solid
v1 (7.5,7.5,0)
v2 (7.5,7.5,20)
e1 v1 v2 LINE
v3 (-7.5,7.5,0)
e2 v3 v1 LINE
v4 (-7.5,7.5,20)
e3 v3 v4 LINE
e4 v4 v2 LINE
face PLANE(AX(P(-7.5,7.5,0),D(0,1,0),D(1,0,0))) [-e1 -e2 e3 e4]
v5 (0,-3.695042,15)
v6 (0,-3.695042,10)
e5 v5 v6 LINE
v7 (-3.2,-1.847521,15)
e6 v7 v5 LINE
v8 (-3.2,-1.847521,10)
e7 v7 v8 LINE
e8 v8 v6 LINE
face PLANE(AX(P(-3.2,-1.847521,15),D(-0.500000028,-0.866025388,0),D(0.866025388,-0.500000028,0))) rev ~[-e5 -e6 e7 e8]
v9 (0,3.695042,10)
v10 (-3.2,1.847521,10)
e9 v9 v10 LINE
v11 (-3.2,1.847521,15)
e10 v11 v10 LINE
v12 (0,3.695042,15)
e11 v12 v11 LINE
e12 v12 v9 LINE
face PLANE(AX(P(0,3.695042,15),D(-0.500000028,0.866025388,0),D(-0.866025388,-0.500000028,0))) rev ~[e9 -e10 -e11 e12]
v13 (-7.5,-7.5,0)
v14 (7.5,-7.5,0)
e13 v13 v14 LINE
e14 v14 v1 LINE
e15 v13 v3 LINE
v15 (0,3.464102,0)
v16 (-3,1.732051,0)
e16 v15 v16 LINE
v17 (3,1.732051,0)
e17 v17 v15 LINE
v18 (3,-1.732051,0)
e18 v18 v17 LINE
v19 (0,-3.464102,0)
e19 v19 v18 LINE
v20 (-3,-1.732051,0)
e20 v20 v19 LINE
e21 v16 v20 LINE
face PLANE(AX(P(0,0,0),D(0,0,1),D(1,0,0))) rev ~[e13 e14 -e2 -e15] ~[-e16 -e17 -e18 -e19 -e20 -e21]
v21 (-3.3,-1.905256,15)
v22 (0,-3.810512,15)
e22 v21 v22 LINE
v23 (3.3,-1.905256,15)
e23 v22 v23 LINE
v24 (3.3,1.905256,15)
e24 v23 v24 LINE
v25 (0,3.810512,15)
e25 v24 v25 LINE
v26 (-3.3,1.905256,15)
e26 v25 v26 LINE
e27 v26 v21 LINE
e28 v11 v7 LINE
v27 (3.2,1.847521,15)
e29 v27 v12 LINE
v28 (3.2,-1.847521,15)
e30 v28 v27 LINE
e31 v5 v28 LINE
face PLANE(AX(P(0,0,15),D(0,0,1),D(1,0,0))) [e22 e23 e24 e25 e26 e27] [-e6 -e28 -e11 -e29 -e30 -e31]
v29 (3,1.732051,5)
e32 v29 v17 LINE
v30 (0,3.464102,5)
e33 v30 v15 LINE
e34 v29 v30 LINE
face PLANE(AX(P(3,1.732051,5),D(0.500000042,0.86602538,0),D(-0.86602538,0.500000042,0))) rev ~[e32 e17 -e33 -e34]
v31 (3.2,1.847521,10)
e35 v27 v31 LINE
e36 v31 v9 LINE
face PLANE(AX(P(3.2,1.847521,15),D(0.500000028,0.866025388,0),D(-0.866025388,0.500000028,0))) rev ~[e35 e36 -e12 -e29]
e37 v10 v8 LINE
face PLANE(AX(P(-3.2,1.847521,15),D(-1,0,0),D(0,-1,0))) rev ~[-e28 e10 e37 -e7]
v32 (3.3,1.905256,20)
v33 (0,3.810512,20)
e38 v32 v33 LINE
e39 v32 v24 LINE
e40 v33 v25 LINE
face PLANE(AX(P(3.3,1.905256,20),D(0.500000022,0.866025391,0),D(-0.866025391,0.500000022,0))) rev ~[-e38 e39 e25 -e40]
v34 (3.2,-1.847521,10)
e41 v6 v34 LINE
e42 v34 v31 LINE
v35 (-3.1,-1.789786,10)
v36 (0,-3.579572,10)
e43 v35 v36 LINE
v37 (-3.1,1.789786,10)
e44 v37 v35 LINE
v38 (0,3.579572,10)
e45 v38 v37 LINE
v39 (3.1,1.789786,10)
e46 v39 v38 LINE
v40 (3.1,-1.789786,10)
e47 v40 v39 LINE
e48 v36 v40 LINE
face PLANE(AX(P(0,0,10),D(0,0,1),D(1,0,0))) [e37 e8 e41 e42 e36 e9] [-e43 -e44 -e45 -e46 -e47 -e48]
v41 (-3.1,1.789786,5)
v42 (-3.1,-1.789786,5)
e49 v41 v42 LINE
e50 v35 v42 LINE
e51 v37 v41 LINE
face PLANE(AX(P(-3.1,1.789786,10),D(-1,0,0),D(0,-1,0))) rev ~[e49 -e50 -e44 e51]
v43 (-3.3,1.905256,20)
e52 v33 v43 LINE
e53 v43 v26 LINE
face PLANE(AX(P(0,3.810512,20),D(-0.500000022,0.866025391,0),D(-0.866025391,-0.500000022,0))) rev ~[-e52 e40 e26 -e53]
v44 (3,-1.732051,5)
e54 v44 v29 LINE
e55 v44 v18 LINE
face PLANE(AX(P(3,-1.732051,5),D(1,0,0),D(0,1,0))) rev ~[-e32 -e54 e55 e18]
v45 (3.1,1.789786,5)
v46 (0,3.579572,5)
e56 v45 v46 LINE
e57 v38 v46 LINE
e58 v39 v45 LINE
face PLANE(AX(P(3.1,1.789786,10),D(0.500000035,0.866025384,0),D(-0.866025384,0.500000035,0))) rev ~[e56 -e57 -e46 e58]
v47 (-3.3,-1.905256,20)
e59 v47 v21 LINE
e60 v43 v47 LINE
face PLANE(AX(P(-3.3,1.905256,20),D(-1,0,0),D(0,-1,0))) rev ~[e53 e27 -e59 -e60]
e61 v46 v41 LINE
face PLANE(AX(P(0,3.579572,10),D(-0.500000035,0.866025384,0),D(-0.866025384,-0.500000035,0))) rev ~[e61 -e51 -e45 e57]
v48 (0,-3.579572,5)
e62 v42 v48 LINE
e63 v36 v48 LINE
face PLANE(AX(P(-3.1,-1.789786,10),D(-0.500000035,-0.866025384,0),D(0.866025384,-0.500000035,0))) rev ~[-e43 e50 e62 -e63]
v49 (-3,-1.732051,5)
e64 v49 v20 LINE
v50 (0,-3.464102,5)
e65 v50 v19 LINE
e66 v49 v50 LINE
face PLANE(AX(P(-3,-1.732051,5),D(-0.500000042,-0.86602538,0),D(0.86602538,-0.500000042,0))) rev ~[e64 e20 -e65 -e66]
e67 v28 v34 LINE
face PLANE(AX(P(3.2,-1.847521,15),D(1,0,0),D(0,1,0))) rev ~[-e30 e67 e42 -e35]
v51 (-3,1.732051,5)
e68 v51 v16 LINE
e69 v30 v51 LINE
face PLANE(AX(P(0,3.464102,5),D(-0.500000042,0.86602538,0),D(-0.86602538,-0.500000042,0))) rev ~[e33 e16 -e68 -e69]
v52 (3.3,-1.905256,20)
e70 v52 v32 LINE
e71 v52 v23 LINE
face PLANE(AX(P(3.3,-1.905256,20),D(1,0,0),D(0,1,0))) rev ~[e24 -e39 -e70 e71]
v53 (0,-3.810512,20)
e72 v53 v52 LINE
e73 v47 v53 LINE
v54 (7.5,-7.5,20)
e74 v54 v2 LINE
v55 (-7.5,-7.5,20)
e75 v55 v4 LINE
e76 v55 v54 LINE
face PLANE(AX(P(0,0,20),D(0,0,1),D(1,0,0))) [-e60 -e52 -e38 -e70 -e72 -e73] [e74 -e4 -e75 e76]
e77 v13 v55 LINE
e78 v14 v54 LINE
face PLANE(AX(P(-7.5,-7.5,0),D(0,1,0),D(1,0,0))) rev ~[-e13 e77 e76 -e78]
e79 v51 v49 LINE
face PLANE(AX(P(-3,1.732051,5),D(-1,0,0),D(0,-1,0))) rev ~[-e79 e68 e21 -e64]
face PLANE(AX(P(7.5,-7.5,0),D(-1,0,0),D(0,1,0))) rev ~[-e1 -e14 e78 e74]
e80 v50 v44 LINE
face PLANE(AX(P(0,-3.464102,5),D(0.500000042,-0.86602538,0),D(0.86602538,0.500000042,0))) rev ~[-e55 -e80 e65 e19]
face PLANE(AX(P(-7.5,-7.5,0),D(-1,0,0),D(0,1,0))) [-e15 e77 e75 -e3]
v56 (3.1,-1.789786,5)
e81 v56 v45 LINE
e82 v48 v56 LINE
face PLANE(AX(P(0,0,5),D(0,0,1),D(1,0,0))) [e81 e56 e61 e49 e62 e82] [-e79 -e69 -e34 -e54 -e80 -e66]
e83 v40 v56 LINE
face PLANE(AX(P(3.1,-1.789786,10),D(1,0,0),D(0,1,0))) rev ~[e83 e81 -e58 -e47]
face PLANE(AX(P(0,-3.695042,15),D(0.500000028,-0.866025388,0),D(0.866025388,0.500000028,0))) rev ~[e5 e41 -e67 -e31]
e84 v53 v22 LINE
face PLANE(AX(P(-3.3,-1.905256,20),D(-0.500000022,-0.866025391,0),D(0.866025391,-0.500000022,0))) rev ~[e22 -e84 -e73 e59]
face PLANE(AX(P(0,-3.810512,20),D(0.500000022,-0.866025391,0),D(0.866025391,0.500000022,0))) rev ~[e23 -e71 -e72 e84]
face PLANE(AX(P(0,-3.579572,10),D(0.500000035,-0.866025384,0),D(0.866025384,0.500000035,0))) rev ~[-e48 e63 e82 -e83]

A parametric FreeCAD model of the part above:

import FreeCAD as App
import Part
import Sketcher

V = App.Vector
Q = App.Units.Quantity


def add_polygon(sketch, points):
    """Adds a closed chain of lines whose ends are joined by coincident constraints."""
    first, n = sketch.GeometryCount, len(points)
    for a, b in zip(points, points[1:] + points[:1]):
        sketch.addGeometry(Part.LineSegment(App.Vector(*a, 0), App.Vector(*b, 0)), False)
    for i in range(n):
        sketch.addConstraint(Sketcher.Constraint("Coincident", first + i, 2, first + (i + 1) % n, 1))

doc = App.newDocument("Part")
body = doc.addObject("PartDesign::Body", "Body")

# Sketch on XY plane
sketch1 = doc.addObject("Sketcher::SketchObject", "Sketch")
body.addObject(sketch1)
sketch1.AttachmentSupport = (doc.XY_Plane, [""])
sketch1.MapMode = "FlatFace"
add_polygon(sketch1, [(-8, 8), (-8, -8), (8, -8), (8, 8)])  # lines 0-3
sketch1.addConstraint(Sketcher.Constraint("Vertical", 0))
sketch1.addConstraint(Sketcher.Constraint("Horizontal", 1))
sketch1.addConstraint(Sketcher.Constraint("Vertical", 2))
sketch1.addConstraint(Sketcher.Constraint("Horizontal", 3))
sketch1.addConstraint(Sketcher.Constraint("Symmetric", 0, 2, 2, 2, -1, 1))
sketch1.addConstraint(Sketcher.Constraint("Equal", 3, 0))
sketch1.addConstraint(Sketcher.Constraint("DistanceX", 1, 1, 1, 2, 15.0))
pad1 = doc.addObject("PartDesign::Pad", "Pad")
body.addObject(pad1)
pad1.Profile = sketch1
pad1.Length = 20

# Sketch on XY plane
sketch2 = doc.addObject("Sketcher::SketchObject", "Sketch001")
body.addObject(sketch2)
sketch2.AttachmentSupport = (doc.XY_Plane, [""])
sketch2.MapMode = "FlatFace"
sketch2.AttachmentOffset = App.Placement(V(0, 0, 20), App.Rotation())
add_polygon(sketch2, [(3.3, -1.9), (3.3, 1.9), (0, 3.8), (-3.3, 1.9), (-3.3, -1.9), (0, -3.8)])  # lines 0-5
sketch2.addConstraint(Sketcher.Constraint("Vertical", 0))
sketch2.addConstraint(Sketcher.Constraint("Vertical", 3))
sketch2.addConstraint(Sketcher.Constraint("Symmetric", 0, 2, 3, 2, -1, 1))
sketch2.addConstraint(Sketcher.Constraint("Symmetric", 1, 2, 4, 2, -1, 1))
sketch2.addConstraint(Sketcher.Constraint("PointOnObject", 1, 2, -2))
sketch2.addConstraint(Sketcher.Constraint("Parallel", 2, 5))
sketch2.addConstraint(Sketcher.Constraint("Horizontal", 0, 2, 2, 2))
sketch2.addConstraint(Sketcher.Constraint("Angle", 1, Q("149.999999 deg")))
sketch2.addConstraint(Sketcher.Constraint("DistanceX", -1, 1, 0, 2, 3.3))
sketch2.addConstraint(Sketcher.Constraint("DistanceY", 0, 1, 0, 2, 3.810512))
pocket1 = doc.addObject("PartDesign::Pocket", "Pocket")
body.addObject(pocket1)
pocket1.Profile = sketch2
pocket1.Length = 5

# Sketch on XY plane
sketch3 = doc.addObject("Sketcher::SketchObject", "Sketch002")
body.addObject(sketch3)
sketch3.AttachmentSupport = (doc.XY_Plane, [""])
sketch3.MapMode = "FlatFace"
sketch3.AttachmentOffset = App.Placement(V(0, 0, 15), App.Rotation())
add_polygon(sketch3, [(3.2, -1.8), (3.2, 1.8), (0, 3.7), (-3.2, 1.8), (-3.2, -1.8), (0, -3.7)])  # lines 0-5
sketch3.addConstraint(Sketcher.Constraint("Vertical", 0))
sketch3.addConstraint(Sketcher.Constraint("Vertical", 3))
sketch3.addConstraint(Sketcher.Constraint("Symmetric", 0, 2, 3, 2, -1, 1))
sketch3.addConstraint(Sketcher.Constraint("Symmetric", 1, 2, 4, 2, -1, 1))
sketch3.addConstraint(Sketcher.Constraint("PointOnObject", 1, 2, -2))
sketch3.addConstraint(Sketcher.Constraint("Parallel", 2, 5))
sketch3.addConstraint(Sketcher.Constraint("Horizontal", 0, 2, 2, 2))
sketch3.addConstraint(Sketcher.Constraint("Angle", 1, Q("149.999998 deg")))
sketch3.addConstraint(Sketcher.Constraint("DistanceX", -1, 1, 0, 2, 3.2))
sketch3.addConstraint(Sketcher.Constraint("DistanceY", 0, 1, 0, 2, 3.695042))
pocket2 = doc.addObject("PartDesign::Pocket", "Pocket001")
body.addObject(pocket2)
pocket2.Profile = sketch3
pocket2.Length = 5

# Sketch on XY plane
sketch4 = doc.addObject("Sketcher::SketchObject", "Sketch003")
body.addObject(sketch4)
sketch4.AttachmentSupport = (doc.XY_Plane, [""])
sketch4.MapMode = "FlatFace"
sketch4.AttachmentOffset = App.Placement(V(0, 0, 10), App.Rotation())
add_polygon(sketch4, [(3.1, -1.8), (3.1, 1.8), (0, 3.6), (-3.1, 1.8), (-3.1, -1.8), (0, -3.6)])  # lines 0-5
sketch4.addConstraint(Sketcher.Constraint("Vertical", 0))
sketch4.addConstraint(Sketcher.Constraint("Vertical", 3))
sketch4.addConstraint(Sketcher.Constraint("Symmetric", 0, 2, 3, 2, -1, 1))
sketch4.addConstraint(Sketcher.Constraint("Symmetric", 1, 2, 4, 2, -1, 1))
sketch4.addConstraint(Sketcher.Constraint("PointOnObject", 1, 2, -2))
sketch4.addConstraint(Sketcher.Constraint("Parallel", 2, 5))
sketch4.addConstraint(Sketcher.Constraint("Horizontal", 0, 2, 2, 2))
sketch4.addConstraint(Sketcher.Constraint("Angle", 1, Q("149.999998 deg")))
sketch4.addConstraint(Sketcher.Constraint("DistanceX", -1, 1, 0, 2, 3.1))
sketch4.addConstraint(Sketcher.Constraint("DistanceY", 0, 1, 0, 2, 3.579572))
pocket3 = doc.addObject("PartDesign::Pocket", "Pocket002")
body.addObject(pocket3)
pocket3.Profile = sketch4
pocket3.Length = 5

# Sketch on XY plane
sketch5 = doc.addObject("Sketcher::SketchObject", "Sketch004")
body.addObject(sketch5)
sketch5.AttachmentSupport = (doc.XY_Plane, [""])
sketch5.MapMode = "FlatFace"
sketch5.AttachmentOffset = App.Placement(V(0, 0, 5), App.Rotation())
add_polygon(sketch5, [(3, -1.7), (3, 1.7), (0, 3.5), (-3, 1.7), (-3, -1.7), (0, -3.5)])  # lines 0-5
sketch5.addConstraint(Sketcher.Constraint("Vertical", 0))
sketch5.addConstraint(Sketcher.Constraint("Vertical", 3))
sketch5.addConstraint(Sketcher.Constraint("Symmetric", 0, 2, 3, 2, -1, 1))
sketch5.addConstraint(Sketcher.Constraint("Symmetric", 1, 2, 4, 2, -1, 1))
sketch5.addConstraint(Sketcher.Constraint("PointOnObject", 1, 2, -2))
sketch5.addConstraint(Sketcher.Constraint("Parallel", 2, 5))
sketch5.addConstraint(Sketcher.Constraint("Horizontal", 0, 2, 2, 2))
sketch5.addConstraint(Sketcher.Constraint("Angle", 1, Q("149.999997 deg")))
sketch5.addConstraint(Sketcher.Constraint("DistanceX", -1, 1, 0, 2, 3.0))
sketch5.addConstraint(Sketcher.Constraint("DistanceY", 0, 1, 0, 2, 3.464102))
pocket4 = doc.addObject("PartDesign::Pocket", "Pocket003")
body.addObject(pocket4)
pocket4.Profile = sketch5
pocket4.Length = 5

doc.recompute()
